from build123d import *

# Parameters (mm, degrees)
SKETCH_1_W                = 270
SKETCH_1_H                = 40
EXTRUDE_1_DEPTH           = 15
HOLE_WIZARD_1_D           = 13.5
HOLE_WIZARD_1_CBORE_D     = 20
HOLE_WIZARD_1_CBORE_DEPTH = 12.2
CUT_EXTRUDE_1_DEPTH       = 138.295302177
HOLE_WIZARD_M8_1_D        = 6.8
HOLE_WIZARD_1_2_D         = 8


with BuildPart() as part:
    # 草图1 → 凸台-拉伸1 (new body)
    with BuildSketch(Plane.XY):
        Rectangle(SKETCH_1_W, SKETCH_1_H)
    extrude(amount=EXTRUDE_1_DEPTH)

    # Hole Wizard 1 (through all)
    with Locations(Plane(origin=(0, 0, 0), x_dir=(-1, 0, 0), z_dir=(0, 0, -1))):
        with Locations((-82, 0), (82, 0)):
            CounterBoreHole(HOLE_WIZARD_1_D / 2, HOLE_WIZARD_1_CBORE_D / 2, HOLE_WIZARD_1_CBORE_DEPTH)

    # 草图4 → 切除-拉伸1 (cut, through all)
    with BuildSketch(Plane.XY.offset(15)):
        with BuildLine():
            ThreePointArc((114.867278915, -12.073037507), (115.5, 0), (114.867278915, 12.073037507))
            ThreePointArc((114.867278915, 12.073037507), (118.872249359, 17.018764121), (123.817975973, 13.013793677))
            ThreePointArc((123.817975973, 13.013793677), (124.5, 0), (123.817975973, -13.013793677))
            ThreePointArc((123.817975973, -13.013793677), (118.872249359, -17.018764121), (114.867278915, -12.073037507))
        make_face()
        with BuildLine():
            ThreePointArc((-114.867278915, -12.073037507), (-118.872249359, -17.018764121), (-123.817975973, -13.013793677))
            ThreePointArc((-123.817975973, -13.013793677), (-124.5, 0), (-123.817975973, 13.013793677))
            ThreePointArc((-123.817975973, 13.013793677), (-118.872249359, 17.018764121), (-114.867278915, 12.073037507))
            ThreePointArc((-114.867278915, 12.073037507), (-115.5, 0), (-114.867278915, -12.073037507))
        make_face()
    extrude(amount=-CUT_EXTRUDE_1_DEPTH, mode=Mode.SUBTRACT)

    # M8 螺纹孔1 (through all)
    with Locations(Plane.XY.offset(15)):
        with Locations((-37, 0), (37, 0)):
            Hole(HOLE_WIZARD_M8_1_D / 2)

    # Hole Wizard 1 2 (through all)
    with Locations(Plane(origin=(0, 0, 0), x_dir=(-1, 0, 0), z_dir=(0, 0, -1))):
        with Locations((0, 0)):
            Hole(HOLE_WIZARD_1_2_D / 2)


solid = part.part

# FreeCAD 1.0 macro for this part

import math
import FreeCAD as App
import Part
import Sketcher
from FreeCAD import Vector


def add_polygon(sketch, points):
    """Adds a closed chain of lines whose ends are joined by coincident constraints."""
    first, n = sketch.GeometryCount, len(points)
    for a, b in zip(points, points[1:] + points[:1]):
        sketch.addGeometry(Part.LineSegment(App.Vector(*a, 0), App.Vector(*b, 0)), False)
    for i in range(n):
        sketch.addConstraint(Sketcher.Constraint("Coincident", first + i, 2, first + (i + 1) % n, 1))

doc = App.newDocument("Part")
params = doc.addObject("Spreadsheet::Sheet", "Params")
for row, (alias, value) in enumerate([
    ("sketch1_width", "270 mm"),
    ("sketch1_height", "40 mm"),
    ("pad1_length", "15 mm"),
    ("sketch2_diameter", "13.5 mm"),
    ("hole_diameter", "13.5 mm"),
    ("hole_cbore_diameter", "20 mm"),
    ("hole_cbore_depth", "12.2 mm"),
    ("sketch3_radius", "115.5 mm"),
    ("sketch3_radius2", "4.5 mm"),
    ("sketch4_diameter", "6.8 mm"),
    ("hole2_diameter", "6.8 mm"),
    ("sketch5_diameter", "8 mm"),
    ("hole3_diameter", "8 mm"),
], start=1):
    params.set(f"A{row}", alias)
    params.set(f"B{row}", "=" + value)
    params.setAlias(f"B{row}", alias)

body = doc.addObject("PartDesign::Body", "Body")

# Sketch on XY plane
sketch1 = body.newObject("Sketcher::SketchObject", "Sketch")
sketch1.AttachmentSupport = (doc.getObject("XY_Plane"), [""])
sketch1.MapMode = "FlatFace"
add_polygon(sketch1, [(-135, 20), (-135, -20), (135, -20), (135, 20)])  # lines 0-3
sketch1.addConstraint([
    Sketcher.Constraint("Vertical", 0),
    Sketcher.Constraint("Horizontal", 1),
    Sketcher.Constraint("Vertical", 2),
    Sketcher.Constraint("Horizontal", 3),
    Sketcher.Constraint("Symmetric", 0, 2, 2, 2, -1, 1),
    Sketcher.Constraint("DistanceX", 1, 1, 1, 2, 270.0),
    Sketcher.Constraint("DistanceY", 0, 2, 0, 1, 40.0),
])
sketch1.setExpression("Constraints[9]", "Params.sketch1_width")
sketch1.setExpression("Constraints[10]", "Params.sketch1_height")
pad1 = body.newObject("PartDesign::Pad", "Pad")
pad1.Profile = sketch1
pad1.setExpression("Length", "Params.pad1_length")

# Sketch on XY plane
sketch2 = body.newObject("Sketcher::SketchObject", "Sketch001")
sketch2.AttachmentSupport = (doc.getObject("XY_Plane"), [""])
sketch2.MapMode = "FlatFace"
sketch2.addGeometry([
    Part.Circle(Vector(82, 0, 0), Vector(0, 0, 1), 7),
    Part.Circle(Vector(-82, 0, 0), Vector(0, 0, 1), 7),
], False)
sketch2.addConstraint([
    Sketcher.Constraint("Equal", 0, 1),
    Sketcher.Constraint("Symmetric", 0, 3, 1, 3, -1, 1),
    Sketcher.Constraint("PointOnObject", 0, 3, -1),
    Sketcher.Constraint("Diameter", 0, 13.5),
    Sketcher.Constraint("DistanceX", -1, 1, 0, 3, 82.0),
])
sketch2.setExpression("Constraints[3]", "Params.sketch2_diameter")
doc.recompute()
hole = body.newObject("PartDesign::Hole", "Hole")
hole.Profile = sketch2
hole.ThreadType = "None"
hole.setExpression("Diameter", "Params.hole_diameter")
hole.DepthType = "ThroughAll"
hole.HoleCutType = "Counterbore"
hole.setExpression("HoleCutDiameter", "Params.hole_cbore_diameter")
hole.setExpression("HoleCutDepth", "Params.hole_cbore_depth")
hole.Reversed = True

# Sketch on XY plane
sketch3 = body.newObject("Sketcher::SketchObject", "Sketch002")
sketch3.AttachmentSupport = (doc.getObject("XY_Plane"), [""])
sketch3.MapMode = "FlatFace"
sketch3.AttachmentOffset = App.Placement(Vector(0, 0, 15), App.Rotation())
sketch3.addGeometry([
    Part.ArcOfCircle(Part.Circle(Vector(0, 0, 0), Vector(0, 0, 1), 115.5), math.radians(-6), math.radians(6)),  # 0
    Part.ArcOfCircle(Part.Circle(Vector(119.3, -12.5, 0), Vector(0, 0, 1), 4.5), math.radians(174), math.radians(354)),  # 1
    Part.ArcOfCircle(Part.Circle(Vector(0, 0, 0), Vector(0, 0, 1), 124.5), math.radians(-6), math.radians(6)),  # 2
    Part.ArcOfCircle(Part.Circle(Vector(119.3, 12.5, 0), Vector(0, 0, 1), 4.5), math.radians(6), math.radians(186)),  # 3
    Part.ArcOfCircle(Part.Circle(Vector(-119.3, -12.5, 0), Vector(0, 0, 1), 4.5), math.radians(-174), math.radians(6)),  # 4
    Part.ArcOfCircle(Part.Circle(Vector(0, 0, 0), Vector(0, 0, 1), 115.5), math.radians(174), math.radians(186)),  # 5
    Part.ArcOfCircle(Part.Circle(Vector(-119.3, 12.5, 0), Vector(0, 0, 1), 4.5), math.radians(-6), math.radians(174)),  # 6
    Part.ArcOfCircle(Part.Circle(Vector(0, 0, 0), Vector(0, 0, 1), 124.5), math.radians(174), math.radians(186)),  # 7
], False)
sketch3.addConstraint([
    Sketcher.Constraint("Tangent", 0, 1, 1, 1),
    Sketcher.Constraint("Tangent", 1, 2, 2, 1),
    Sketcher.Constraint("Tangent", 2, 2, 3, 1),
    Sketcher.Constraint("Tangent", 3, 2, 0, 2),
    Sketcher.Constraint("Tangent", 4, 2, 5, 2),
    Sketcher.Constraint("Tangent", 5, 1, 6, 1),
    Sketcher.Constraint("Tangent", 6, 2, 7, 1),
    Sketcher.Constraint("Tangent", 7, 2, 4, 1),
    Sketcher.Constraint("Coincident", 0, 3, -1, 1),
    Sketcher.Constraint("Coincident", 2, 3, -1, 1),
    Sketcher.Constraint("Coincident", 5, 3, -1, 1),
    Sketcher.Constraint("Coincident", 7, 3, -1, 1),
    Sketcher.Constraint("Equal", 3, 4),
    Sketcher.Constraint("Equal", 0, 5),
    Sketcher.Constraint("Horizontal", 1, 3, 4, 3),
    Sketcher.Constraint("Horizontal", 3, 3, 6, 3),
    Sketcher.Constraint("Vertical", 1, 3, 3, 3),
    Sketcher.Constraint("Radius", 0, 115.5),
    Sketcher.Constraint("Radius", 1, 4.5),
    Sketcher.Constraint("DistanceX", -1, 1, 0, 1, 114.867279),
])
sketch3.setExpression("Constraints[17]", "Params.sketch3_radius")
sketch3.setExpression("Constraints[18]", "Params.sketch3_radius2")
pocket1 = body.newObject("PartDesign::Pocket", "Pocket")
pocket1.Profile = sketch3
pocket1.Type = "ThroughAll"

# Sketch on XY plane
sketch4 = body.newObject("Sketcher::SketchObject", "Sketch003")
sketch4.AttachmentSupport = (doc.getObject("XY_Plane"), [""])
sketch4.MapMode = "FlatFace"
sketch4.AttachmentOffset = App.Placement(Vector(0, 0, 15), App.Rotation())
sketch4.addGeometry([
    Part.Circle(Vector(-37, 0, 0), Vector(0, 0, 1), 3.4),
    Part.Circle(Vector(37, 0, 0), Vector(0, 0, 1), 3.4),
], False)
sketch4.addConstraint([
    Sketcher.Constraint("Equal", 0, 1),
    Sketcher.Constraint("Symmetric", 0, 3, 1, 3, -1, 1),
    Sketcher.Constraint("PointOnObject", 0, 3, -1),
    Sketcher.Constraint("Diameter", 0, 6.8),
    Sketcher.Constraint("DistanceX", 0, 3, -1, 1, 37.0),
])
sketch4.setExpression("Constraints[3]", "Params.sketch4_diameter")
doc.recompute()
hole2 = body.newObject("PartDesign::Hole", "Hole001")
hole2.Profile = sketch4
hole2.ThreadType = "None"
hole2.setExpression("Diameter", "Params.hole2_diameter")
hole2.DepthType = "ThroughAll"

# Sketch on XY plane
sketch5 = body.newObject("Sketcher::SketchObject", "Sketch004")
sketch5.AttachmentSupport = (doc.getObject("XY_Plane"), [""])
sketch5.MapMode = "FlatFace"
sketch5.addGeometry(Part.Circle(Vector(0, 0, 0), Vector(0, 0, 1), 4), False)
sketch5.addConstraint([
    Sketcher.Constraint("Coincident", 0, 3, -1, 1),
    Sketcher.Constraint("Diameter", 0, 8.0),
])
sketch5.setExpression("Constraints[1]", "Params.sketch5_diameter")
doc.recompute()
hole3 = body.newObject("PartDesign::Hole", "Hole002")
hole3.Profile = sketch5
hole3.ThreadType = "None"
hole3.setExpression("Diameter", "Params.hole3_diameter")
hole3.DepthType = "ThroughAll"
hole3.Reversed = True

doc.recompute()
